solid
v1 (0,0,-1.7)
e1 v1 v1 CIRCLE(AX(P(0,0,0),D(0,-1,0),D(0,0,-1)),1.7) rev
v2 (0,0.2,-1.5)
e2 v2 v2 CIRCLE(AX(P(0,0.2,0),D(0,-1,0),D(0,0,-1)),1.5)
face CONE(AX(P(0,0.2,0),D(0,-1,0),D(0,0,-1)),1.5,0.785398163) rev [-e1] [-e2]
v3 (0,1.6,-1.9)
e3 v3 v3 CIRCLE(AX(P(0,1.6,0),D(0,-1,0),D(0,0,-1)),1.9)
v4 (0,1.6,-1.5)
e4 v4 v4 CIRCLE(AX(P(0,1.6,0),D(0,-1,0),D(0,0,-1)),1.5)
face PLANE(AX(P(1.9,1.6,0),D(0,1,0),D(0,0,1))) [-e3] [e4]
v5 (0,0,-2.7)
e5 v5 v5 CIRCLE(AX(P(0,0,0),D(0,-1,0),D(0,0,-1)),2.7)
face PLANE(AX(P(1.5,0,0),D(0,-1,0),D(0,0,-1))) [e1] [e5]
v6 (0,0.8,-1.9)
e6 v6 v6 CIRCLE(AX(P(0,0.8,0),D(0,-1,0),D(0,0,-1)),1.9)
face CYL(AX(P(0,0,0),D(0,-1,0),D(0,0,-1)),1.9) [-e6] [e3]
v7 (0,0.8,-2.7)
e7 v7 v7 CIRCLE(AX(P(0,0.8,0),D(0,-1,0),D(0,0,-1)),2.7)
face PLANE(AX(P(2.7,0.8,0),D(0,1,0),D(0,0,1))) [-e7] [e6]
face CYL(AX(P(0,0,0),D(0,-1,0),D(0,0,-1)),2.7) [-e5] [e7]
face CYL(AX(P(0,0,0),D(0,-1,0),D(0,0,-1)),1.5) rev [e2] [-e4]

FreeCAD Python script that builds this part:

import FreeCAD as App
import Part
import Sketcher
from FreeCAD import Vector


def edges_at(feature, points):
    """Names of the edges that pass closest to the given points."""
    edges = feature.Shape.Edges
    near = lambda p: min(range(len(edges)), key=lambda i: edges[i].distToShape(Part.Vertex(*p))[0])
    return sorted({f"Edge{near(p) + 1}" for p in points})


def add_polygon(sketch, points):
    """Adds a closed chain of lines whose ends are joined by coincident constraints."""
    first, n = sketch.GeometryCount, len(points)
    for a, b in zip(points, points[1:] + points[:1]):
        sketch.addGeometry(Part.LineSegment(App.Vector(*a, 0), App.Vector(*b, 0)), False)
    for i in range(n):
        sketch.addConstraint(Sketcher.Constraint("Coincident", first + i, 2, first + (i + 1) % n, 1))

doc = App.newDocument("Part")
params = doc.addObject("Spreadsheet::Sheet", "Params")
for row, (alias, value) in enumerate([
    ("sketch1_width", "1.2 mm"),
    ("sketch1_width2", "0.8 mm"),
    ("revolution_angle", "360 deg"),
    ("chamfer_size", "0.2 mm"),
], start=1):
    params.set(f"A{row}", alias)
    params.set(f"B{row}", "=" + value)
    params.setAlias(f"B{row}", alias)

body = doc.addObject("PartDesign::Body", "Body")

# Sketch on XY plane
sketch1 = doc.addObject("Sketcher::SketchObject", "Sketch")
body.addObject(sketch1)
sketch1.AttachmentSupport = (doc.XY_Plane, [""])
sketch1.MapMode = "FlatFace"
add_polygon(sketch1, [(1.5, 0), (2.7, 0), (2.7, 0.8), (1.9, 0.8), (1.9, 1.6), (1.5, 1.6)])  # lines 0-5
sketch1.addConstraint([
    Sketcher.Constraint("Horizontal", 0),
    Sketcher.Constraint("Vertical", 1),
    Sketcher.Constraint("Horizontal", 2),
    Sketcher.Constraint("Vertical", 3),
    Sketcher.Constraint("Horizontal", 4),
    Sketcher.Constraint("Vertical", 5),
    Sketcher.Constraint("PointOnObject", 0, 2, -1),
    Sketcher.Constraint("Equal", 2, 1),
    Sketcher.Constraint("Equal", 1, 3),
    Sketcher.Constraint("DistanceX", 0, 1, 0, 2, 1.2),
    Sketcher.Constraint("DistanceX", 2, 2, 2, 1, 0.8),
    Sketcher.Constraint("DistanceX", -1, 1, 0, 2, 2.7),
])
sketch1.setExpression("Constraints[15]", "Params.sketch1_width")
sketch1.setExpression("Constraints[16]", "Params.sketch1_width2")
revolution = doc.addObject("PartDesign::Revolution", "Revolution")
body.addObject(revolution)
revolution.Profile = sketch1
revolution.ReferenceAxis = (sketch1, ["V_Axis"])
revolution.setExpression("Angle", "Params.revolution_angle")
doc.recompute()

chamfer = doc.addObject("PartDesign::Chamfer", "Chamfer")
body.addObject(chamfer)
chamfer.Base = (revolution, edges_at(revolution, [(-1.5, 0, 0)]))
chamfer.setExpression("Size", "Params.chamfer_size")

doc.recompute()
